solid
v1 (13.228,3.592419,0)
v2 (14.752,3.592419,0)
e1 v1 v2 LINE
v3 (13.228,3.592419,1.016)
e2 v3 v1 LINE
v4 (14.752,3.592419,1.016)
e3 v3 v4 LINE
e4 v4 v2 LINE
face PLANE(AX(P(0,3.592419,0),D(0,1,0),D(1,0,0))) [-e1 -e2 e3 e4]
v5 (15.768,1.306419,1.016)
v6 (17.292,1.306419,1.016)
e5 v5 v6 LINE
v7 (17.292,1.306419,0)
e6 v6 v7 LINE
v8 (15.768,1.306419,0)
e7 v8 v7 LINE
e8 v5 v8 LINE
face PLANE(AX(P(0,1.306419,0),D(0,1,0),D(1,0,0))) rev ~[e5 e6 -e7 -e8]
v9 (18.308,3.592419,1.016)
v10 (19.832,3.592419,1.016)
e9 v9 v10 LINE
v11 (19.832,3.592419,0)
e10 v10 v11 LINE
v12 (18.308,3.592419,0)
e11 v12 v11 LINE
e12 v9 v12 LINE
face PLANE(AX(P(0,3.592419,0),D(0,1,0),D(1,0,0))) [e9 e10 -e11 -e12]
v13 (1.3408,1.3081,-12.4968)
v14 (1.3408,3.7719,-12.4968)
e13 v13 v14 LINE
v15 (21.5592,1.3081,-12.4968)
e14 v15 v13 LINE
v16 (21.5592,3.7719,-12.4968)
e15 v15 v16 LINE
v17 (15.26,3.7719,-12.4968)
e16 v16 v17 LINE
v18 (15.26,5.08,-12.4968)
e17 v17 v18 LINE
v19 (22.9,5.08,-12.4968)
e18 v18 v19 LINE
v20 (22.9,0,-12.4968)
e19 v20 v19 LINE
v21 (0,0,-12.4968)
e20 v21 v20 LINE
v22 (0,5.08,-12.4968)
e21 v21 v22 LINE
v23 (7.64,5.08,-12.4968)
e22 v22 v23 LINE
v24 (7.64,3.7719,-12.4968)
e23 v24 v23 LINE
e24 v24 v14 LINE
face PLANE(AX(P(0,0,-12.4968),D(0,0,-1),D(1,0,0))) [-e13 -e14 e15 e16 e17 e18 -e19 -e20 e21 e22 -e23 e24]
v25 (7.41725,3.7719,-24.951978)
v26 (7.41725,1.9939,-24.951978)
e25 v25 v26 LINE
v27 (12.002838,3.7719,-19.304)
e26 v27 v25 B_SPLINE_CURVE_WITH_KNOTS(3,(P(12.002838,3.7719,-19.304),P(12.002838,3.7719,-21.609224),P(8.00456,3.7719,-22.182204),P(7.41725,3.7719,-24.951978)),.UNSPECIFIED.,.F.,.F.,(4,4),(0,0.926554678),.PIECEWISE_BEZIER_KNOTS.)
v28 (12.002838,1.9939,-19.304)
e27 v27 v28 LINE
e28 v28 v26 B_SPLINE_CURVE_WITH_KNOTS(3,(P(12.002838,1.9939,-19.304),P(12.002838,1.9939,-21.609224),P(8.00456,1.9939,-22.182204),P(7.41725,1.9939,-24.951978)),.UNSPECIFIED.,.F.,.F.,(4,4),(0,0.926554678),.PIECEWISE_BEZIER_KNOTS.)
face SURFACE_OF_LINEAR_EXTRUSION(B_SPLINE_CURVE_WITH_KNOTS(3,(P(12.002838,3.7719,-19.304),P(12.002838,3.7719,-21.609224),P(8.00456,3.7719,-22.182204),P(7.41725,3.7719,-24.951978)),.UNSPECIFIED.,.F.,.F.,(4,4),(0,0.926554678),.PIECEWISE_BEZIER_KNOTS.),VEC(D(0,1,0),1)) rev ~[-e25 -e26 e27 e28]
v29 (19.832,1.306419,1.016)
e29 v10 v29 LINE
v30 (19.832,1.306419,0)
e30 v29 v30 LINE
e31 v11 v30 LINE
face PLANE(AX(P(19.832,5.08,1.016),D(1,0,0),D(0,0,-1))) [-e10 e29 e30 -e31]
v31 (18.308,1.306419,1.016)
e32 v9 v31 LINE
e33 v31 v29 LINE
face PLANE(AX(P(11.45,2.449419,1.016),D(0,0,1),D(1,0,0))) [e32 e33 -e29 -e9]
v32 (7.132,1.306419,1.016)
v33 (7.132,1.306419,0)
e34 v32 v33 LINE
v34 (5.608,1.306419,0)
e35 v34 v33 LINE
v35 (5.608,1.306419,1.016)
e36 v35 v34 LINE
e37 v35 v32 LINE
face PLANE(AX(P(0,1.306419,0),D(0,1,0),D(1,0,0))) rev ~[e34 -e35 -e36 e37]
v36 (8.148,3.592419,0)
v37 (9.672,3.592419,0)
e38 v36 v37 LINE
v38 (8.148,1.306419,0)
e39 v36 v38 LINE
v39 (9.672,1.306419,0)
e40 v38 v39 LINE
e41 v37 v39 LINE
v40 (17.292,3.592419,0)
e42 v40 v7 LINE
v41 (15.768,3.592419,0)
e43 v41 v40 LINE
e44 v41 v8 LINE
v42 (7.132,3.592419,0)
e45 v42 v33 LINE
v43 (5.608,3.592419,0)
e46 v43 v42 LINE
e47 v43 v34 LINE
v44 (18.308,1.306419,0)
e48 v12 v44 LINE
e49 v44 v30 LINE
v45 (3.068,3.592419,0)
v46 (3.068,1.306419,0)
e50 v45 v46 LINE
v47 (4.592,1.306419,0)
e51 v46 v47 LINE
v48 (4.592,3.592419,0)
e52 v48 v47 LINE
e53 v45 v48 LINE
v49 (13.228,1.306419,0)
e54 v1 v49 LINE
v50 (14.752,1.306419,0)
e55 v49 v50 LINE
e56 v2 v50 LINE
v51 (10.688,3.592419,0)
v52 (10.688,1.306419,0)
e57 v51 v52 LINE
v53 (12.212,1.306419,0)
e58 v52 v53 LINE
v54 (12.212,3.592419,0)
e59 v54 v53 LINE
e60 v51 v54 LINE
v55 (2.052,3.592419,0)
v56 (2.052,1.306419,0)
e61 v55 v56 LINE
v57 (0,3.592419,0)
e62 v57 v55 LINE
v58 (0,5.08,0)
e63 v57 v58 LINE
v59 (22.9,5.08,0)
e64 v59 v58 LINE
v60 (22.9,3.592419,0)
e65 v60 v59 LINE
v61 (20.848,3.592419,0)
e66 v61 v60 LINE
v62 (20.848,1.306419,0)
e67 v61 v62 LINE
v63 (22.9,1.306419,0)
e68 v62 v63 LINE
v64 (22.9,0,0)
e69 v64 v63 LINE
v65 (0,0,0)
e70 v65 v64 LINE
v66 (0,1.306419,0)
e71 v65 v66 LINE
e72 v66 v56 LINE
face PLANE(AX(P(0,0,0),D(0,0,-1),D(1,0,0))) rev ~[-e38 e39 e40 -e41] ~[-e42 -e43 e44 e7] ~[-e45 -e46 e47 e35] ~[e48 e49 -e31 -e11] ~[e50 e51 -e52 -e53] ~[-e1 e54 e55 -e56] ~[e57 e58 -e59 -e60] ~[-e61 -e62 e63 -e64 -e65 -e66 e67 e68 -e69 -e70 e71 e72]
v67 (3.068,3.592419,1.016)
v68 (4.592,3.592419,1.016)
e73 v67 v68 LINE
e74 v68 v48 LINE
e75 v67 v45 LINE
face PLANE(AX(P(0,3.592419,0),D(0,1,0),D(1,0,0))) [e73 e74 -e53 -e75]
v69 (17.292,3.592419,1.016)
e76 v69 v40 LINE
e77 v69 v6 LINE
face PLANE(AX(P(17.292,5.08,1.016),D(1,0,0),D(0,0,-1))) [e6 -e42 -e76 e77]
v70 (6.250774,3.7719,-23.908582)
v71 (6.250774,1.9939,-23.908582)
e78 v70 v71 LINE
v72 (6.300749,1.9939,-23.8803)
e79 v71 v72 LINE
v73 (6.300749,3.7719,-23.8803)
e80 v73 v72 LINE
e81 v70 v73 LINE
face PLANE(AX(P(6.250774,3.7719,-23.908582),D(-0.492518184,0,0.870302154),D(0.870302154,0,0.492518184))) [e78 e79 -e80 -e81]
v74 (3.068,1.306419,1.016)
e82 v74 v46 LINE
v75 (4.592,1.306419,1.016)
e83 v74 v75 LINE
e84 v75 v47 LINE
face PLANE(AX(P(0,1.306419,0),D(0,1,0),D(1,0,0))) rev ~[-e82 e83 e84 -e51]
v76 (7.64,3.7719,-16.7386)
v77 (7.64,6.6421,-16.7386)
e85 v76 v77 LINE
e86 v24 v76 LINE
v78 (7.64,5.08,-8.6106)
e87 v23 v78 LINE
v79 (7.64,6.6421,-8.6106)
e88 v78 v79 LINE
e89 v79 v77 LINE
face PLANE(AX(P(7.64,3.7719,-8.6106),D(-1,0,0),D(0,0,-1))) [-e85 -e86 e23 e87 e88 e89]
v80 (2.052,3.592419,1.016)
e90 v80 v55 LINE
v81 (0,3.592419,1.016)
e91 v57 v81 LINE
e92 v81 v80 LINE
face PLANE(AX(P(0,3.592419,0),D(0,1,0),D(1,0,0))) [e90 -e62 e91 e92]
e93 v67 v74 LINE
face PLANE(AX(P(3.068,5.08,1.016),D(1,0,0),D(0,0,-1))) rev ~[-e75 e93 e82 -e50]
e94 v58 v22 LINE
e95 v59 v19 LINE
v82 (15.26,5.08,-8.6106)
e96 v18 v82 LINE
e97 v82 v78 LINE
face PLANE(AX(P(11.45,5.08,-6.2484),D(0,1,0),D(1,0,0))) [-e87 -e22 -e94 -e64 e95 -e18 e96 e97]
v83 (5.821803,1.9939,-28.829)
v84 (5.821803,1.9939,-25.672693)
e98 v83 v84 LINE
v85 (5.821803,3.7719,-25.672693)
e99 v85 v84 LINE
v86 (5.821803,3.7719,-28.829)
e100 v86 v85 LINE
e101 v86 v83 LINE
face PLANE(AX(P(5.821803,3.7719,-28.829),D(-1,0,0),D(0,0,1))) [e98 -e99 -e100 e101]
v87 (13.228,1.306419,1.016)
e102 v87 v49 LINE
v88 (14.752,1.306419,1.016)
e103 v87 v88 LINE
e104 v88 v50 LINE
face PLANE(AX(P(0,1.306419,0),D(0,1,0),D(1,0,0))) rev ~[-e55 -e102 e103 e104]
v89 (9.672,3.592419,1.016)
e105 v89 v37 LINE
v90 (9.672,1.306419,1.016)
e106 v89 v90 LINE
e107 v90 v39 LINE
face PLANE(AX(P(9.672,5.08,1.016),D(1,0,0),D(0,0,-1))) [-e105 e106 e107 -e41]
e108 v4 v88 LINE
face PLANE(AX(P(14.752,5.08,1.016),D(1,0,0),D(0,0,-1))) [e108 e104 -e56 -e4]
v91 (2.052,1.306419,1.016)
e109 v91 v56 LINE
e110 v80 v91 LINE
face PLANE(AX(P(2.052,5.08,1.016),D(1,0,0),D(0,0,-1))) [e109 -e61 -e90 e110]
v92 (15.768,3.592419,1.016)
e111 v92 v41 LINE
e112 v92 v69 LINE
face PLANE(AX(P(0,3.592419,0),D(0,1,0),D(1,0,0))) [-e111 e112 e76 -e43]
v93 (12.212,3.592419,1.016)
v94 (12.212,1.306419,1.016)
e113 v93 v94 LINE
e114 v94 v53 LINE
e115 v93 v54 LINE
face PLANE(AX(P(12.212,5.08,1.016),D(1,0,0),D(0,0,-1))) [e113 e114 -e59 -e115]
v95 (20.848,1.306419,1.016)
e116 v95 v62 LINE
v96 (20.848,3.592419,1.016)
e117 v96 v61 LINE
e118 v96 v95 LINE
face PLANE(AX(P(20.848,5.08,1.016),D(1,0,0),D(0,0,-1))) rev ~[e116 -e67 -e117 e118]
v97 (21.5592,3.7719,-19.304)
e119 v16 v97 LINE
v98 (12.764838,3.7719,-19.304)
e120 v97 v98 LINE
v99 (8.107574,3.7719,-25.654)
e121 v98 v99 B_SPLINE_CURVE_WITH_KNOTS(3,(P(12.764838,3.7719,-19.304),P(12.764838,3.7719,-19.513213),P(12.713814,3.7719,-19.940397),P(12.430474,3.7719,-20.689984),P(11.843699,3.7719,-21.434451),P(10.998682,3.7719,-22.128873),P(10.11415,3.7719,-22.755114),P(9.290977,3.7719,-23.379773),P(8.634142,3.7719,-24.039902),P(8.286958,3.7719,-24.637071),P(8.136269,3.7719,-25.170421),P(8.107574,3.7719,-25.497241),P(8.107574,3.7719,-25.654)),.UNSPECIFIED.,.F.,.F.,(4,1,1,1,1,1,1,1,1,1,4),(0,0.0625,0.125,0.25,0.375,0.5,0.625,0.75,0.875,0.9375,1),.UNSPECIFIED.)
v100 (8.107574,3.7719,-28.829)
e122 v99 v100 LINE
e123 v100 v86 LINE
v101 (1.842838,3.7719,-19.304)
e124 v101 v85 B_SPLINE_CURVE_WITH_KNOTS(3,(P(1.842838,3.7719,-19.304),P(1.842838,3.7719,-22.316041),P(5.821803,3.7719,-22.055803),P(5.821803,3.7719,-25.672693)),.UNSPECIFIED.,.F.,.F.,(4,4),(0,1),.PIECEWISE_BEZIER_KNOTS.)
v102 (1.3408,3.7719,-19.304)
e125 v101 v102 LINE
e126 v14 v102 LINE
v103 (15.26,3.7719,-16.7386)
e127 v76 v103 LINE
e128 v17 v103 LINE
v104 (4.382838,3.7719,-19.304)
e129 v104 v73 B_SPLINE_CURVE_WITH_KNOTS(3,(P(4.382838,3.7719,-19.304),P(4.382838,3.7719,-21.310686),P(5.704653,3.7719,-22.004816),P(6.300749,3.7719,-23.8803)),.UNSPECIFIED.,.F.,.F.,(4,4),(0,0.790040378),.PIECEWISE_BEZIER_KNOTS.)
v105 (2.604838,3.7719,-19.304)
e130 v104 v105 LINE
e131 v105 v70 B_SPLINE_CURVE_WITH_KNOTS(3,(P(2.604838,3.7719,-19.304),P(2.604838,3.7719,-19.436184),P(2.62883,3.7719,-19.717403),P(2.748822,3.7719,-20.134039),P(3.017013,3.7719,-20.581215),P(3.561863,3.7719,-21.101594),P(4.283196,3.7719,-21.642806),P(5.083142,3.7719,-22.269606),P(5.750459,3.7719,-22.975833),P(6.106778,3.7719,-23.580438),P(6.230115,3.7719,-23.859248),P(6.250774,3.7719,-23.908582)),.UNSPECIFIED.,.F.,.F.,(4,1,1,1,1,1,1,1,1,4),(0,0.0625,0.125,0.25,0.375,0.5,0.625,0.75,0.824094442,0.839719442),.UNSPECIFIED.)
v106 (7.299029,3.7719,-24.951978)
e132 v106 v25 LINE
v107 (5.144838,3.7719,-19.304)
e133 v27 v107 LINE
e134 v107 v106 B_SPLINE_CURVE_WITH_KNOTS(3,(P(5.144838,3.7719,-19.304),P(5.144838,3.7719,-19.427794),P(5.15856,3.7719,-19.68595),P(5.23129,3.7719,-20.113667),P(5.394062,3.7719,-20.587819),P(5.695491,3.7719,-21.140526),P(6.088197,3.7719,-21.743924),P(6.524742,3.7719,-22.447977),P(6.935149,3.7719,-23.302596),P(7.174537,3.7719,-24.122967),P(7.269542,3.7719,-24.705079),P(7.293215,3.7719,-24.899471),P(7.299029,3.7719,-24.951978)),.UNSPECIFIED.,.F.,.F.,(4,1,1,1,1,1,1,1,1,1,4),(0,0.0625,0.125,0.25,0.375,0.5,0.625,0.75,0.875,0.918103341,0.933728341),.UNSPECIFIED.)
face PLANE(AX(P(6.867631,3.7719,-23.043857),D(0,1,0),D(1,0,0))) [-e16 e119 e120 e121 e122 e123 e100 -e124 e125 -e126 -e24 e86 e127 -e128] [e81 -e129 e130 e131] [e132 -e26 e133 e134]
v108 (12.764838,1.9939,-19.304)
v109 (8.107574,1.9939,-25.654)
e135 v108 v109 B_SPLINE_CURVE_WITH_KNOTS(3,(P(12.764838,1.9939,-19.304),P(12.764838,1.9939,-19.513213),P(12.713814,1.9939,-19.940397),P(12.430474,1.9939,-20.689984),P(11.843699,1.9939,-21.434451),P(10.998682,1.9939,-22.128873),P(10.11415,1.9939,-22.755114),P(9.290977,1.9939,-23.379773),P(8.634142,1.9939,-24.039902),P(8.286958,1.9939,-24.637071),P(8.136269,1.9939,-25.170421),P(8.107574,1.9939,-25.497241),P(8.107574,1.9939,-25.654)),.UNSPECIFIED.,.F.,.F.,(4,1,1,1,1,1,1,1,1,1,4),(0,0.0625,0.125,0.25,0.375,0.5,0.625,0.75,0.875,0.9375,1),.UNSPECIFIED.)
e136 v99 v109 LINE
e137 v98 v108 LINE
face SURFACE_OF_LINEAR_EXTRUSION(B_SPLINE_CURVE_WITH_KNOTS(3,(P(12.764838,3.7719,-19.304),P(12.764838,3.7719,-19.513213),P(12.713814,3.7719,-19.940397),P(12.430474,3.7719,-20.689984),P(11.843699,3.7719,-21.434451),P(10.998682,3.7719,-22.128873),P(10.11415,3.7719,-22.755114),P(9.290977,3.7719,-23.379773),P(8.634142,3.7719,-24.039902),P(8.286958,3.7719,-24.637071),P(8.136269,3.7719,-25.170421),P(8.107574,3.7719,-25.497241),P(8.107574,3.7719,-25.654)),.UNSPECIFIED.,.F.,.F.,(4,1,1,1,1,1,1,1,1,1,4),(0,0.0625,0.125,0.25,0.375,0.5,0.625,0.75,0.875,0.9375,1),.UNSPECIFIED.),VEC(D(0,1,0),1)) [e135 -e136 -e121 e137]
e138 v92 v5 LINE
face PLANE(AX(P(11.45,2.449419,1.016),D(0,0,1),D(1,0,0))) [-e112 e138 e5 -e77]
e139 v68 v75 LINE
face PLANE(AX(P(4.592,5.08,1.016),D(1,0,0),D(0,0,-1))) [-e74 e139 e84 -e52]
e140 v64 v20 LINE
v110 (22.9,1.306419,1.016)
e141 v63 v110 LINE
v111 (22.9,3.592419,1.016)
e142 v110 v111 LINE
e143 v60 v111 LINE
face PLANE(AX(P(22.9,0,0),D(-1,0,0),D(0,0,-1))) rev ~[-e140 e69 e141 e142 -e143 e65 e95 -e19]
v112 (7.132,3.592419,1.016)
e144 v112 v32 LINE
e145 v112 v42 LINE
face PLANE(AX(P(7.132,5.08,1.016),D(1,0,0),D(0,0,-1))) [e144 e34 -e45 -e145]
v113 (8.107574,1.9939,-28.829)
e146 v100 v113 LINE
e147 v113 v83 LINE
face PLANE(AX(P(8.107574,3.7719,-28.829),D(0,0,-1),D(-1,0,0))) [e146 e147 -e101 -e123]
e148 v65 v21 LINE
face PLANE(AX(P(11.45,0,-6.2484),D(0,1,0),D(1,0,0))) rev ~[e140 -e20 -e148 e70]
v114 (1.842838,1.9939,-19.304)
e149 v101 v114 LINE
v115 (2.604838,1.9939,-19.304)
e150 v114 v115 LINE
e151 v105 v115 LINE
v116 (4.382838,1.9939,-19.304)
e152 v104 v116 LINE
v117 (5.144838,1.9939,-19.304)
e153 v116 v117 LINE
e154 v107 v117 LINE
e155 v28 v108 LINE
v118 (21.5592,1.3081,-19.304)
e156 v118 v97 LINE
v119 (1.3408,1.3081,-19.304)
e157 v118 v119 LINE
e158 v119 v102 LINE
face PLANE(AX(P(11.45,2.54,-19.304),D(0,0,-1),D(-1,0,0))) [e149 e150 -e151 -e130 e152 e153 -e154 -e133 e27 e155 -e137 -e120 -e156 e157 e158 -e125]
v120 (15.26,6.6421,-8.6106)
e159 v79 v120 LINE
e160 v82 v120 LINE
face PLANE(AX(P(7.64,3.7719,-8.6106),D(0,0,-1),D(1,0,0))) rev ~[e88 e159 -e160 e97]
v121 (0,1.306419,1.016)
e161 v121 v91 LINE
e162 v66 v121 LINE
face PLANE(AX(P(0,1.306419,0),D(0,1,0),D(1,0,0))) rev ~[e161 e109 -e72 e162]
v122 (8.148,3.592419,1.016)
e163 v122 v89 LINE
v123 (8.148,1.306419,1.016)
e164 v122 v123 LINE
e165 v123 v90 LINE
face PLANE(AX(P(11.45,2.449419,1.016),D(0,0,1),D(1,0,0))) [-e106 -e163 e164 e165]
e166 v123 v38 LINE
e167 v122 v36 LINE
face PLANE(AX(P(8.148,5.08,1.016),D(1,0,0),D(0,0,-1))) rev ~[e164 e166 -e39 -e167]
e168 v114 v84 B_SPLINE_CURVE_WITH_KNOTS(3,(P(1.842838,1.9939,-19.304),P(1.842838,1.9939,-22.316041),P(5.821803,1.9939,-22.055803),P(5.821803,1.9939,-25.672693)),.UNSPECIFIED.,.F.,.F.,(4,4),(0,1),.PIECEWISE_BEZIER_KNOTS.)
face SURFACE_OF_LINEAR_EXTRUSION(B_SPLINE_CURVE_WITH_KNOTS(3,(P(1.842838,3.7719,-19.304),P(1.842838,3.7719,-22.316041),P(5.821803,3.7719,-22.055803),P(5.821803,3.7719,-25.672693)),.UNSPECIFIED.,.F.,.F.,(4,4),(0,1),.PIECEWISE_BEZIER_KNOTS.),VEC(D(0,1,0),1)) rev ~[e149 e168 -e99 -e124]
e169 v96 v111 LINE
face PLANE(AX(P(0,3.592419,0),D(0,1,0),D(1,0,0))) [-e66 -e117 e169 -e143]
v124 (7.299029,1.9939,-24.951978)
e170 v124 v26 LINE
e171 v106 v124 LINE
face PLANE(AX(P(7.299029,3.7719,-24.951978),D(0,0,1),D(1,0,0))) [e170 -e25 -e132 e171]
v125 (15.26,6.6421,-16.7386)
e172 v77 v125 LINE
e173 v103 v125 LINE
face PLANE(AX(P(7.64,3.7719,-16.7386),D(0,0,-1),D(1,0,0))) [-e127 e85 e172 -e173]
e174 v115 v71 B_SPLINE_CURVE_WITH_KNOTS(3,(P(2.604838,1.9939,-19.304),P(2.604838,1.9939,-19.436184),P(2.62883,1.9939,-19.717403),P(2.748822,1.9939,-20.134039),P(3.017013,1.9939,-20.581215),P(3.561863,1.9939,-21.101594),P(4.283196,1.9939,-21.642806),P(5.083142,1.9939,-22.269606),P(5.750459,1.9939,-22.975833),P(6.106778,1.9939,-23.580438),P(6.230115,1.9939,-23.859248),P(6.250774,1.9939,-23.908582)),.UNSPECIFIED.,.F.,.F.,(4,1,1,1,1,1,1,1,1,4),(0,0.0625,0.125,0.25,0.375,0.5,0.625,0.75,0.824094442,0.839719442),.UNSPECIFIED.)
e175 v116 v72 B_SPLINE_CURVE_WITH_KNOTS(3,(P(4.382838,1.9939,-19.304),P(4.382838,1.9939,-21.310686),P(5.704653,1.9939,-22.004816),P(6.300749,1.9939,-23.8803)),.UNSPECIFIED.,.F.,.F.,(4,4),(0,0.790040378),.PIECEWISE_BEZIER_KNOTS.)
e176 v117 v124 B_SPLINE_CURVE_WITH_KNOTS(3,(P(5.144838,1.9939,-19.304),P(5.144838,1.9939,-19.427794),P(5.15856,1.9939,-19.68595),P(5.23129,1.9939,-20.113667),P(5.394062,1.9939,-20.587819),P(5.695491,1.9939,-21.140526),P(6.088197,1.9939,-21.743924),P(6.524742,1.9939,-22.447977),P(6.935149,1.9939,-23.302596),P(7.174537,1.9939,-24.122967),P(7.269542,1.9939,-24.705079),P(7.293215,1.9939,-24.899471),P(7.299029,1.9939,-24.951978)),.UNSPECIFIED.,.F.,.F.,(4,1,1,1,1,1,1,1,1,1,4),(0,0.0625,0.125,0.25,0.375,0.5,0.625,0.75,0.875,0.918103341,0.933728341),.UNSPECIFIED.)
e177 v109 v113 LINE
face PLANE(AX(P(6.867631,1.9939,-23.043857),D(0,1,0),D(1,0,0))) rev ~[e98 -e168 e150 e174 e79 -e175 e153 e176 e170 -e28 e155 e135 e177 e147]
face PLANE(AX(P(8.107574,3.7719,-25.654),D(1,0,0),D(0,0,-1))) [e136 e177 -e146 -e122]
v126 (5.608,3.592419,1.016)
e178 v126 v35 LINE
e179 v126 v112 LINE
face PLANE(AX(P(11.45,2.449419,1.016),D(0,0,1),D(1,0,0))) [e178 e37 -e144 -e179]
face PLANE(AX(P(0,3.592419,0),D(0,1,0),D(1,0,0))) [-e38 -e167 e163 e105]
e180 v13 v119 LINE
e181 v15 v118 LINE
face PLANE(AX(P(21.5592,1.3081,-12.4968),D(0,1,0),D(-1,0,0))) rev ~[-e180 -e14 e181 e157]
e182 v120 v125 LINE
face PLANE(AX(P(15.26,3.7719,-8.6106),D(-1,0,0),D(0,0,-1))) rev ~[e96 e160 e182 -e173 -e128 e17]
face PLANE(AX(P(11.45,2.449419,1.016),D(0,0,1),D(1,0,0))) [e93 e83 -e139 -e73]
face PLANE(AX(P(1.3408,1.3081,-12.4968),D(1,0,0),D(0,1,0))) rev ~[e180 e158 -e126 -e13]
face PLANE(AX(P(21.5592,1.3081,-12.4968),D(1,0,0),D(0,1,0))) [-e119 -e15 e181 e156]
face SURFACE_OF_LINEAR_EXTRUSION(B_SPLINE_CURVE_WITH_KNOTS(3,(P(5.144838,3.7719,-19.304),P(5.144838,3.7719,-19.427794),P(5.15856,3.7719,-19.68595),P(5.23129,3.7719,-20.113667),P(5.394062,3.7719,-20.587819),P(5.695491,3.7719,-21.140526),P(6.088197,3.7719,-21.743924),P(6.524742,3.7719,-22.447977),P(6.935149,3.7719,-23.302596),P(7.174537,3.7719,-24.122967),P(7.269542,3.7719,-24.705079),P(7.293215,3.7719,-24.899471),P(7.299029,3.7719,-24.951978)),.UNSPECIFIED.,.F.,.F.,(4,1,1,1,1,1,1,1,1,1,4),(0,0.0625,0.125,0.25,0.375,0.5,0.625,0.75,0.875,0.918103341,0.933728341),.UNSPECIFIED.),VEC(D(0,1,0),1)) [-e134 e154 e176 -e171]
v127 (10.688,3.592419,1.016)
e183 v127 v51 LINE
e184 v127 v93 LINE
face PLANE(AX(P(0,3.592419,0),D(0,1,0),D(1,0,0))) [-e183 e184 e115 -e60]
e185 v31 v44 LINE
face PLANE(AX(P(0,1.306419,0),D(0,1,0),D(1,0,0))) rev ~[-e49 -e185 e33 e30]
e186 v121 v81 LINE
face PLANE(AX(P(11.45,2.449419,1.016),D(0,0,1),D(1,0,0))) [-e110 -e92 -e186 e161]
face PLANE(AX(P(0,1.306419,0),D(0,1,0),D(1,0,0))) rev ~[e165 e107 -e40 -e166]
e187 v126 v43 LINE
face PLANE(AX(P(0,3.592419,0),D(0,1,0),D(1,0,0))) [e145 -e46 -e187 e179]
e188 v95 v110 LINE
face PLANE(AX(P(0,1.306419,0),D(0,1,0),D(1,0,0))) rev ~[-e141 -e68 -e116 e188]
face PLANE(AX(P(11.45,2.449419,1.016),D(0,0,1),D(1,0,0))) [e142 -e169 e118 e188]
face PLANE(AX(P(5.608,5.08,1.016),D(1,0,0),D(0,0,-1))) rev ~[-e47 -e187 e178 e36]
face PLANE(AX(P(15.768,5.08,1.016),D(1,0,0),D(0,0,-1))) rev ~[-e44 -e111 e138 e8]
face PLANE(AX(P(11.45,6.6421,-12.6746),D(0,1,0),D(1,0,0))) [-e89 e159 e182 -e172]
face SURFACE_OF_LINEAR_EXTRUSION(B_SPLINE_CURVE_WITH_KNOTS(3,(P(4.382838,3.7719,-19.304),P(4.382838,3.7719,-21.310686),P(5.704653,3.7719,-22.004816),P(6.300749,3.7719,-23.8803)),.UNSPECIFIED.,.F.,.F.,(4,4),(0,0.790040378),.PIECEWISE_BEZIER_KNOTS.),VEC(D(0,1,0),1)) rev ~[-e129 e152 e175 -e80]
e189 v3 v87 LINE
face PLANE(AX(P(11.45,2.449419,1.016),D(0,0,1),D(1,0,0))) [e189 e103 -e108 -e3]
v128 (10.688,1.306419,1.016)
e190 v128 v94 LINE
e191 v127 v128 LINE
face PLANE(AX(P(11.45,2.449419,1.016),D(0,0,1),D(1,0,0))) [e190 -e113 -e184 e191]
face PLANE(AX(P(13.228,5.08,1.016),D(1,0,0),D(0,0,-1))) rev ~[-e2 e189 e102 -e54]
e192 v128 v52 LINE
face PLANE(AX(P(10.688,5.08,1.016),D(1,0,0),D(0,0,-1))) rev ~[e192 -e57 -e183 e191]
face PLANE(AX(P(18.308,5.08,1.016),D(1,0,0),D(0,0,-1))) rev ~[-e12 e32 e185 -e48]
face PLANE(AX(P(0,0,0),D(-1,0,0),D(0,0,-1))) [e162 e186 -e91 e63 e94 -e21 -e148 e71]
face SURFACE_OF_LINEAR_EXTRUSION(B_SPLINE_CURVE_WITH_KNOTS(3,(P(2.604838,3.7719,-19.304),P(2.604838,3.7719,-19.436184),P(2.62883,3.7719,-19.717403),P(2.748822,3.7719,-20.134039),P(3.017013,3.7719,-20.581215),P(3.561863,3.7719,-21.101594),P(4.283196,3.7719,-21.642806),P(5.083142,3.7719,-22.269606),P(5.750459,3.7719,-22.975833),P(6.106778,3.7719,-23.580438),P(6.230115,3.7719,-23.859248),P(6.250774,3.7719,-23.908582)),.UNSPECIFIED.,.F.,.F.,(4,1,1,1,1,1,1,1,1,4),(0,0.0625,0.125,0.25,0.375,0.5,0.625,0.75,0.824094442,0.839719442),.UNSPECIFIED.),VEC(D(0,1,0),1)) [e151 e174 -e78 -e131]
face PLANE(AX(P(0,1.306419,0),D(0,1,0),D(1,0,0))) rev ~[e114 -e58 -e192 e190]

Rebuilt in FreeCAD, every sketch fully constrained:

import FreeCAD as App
import Part
import Sketcher
from FreeCAD import Vector
Q = App.Units.Quantity

doc = App.newDocument("Part")
body = doc.addObject("PartDesign::Body", "Body")

# Sketch on XZ plane
sketch1 = body.newObject("Sketcher::SketchObject", "Sketch")
sketch1.AttachmentSupport = (doc.getObject("XZ_Plane"), [""])
sketch1.MapMode = "FlatFace"
sketch1.addGeometry(Part.LineSegment(Vector(0, -12, 0), Vector(0, 0, 0)), False)
sketch1.addGeometry(Part.LineSegment(Vector(0, 0, 0), Vector(23, 0, 0)), False)
sketch1.addGeometry(Part.LineSegment(Vector(23, 0, 0), Vector(23, -12, 0)), False)
sketch1.addGeometry(Part.LineSegment(Vector(23, -12, 0), Vector(0, -12, 0)), False)
sketch1.addConstraint(Sketcher.Constraint("Coincident", 0, 2, 1, 1))
sketch1.addConstraint(Sketcher.Constraint("Coincident", 1, 2, 2, 1))
sketch1.addConstraint(Sketcher.Constraint("Coincident", 2, 2, 3, 1))
sketch1.addConstraint(Sketcher.Constraint("Coincident", 3, 2, 0, 1))
sketch1.addConstraint(Sketcher.Constraint("Vertical", 0))
sketch1.addConstraint(Sketcher.Constraint("Horizontal", 1))
sketch1.addConstraint(Sketcher.Constraint("Vertical", 2))
sketch1.addConstraint(Sketcher.Constraint("Horizontal", 3))
sketch1.addConstraint(Sketcher.Constraint("Coincident", 0, 2, -1, 1))
sketch1.addConstraint(Sketcher.Constraint("DistanceY", 0, 1, 0, 2, Q("0.492 in")))
sketch1.addConstraint(Sketcher.Constraint("DistanceX", 1, 1, 1, 2, 22.9))
pad1 = body.newObject("PartDesign::Pad", "Pad")
pad1.Profile = sketch1
pad1.Length = Q("0.2 in")
pad1.Reversed = True

# Sketch on XY plane
sketch2 = body.newObject("Sketcher::SketchObject", "Sketch001")
sketch2.AttachmentSupport = (doc.getObject("XY_Plane"), [""])
sketch2.MapMode = "FlatFace"
sketch2.addGeometry(Part.LineSegment(Vector(0, 3.6, 0), Vector(0, 1.3, 0)), False)
sketch2.addGeometry(Part.LineSegment(Vector(0, 1.3, 0), Vector(22.9, 1.3, 0)), False)
sketch2.addGeometry(Part.LineSegment(Vector(22.9, 1.3, 0), Vector(22.9, 3.6, 0)), False)
sketch2.addGeometry(Part.LineSegment(Vector(22.9, 3.6, 0), Vector(0, 3.6, 0)), False)
sketch2.addConstraint(Sketcher.Constraint("Coincident", 0, 2, 1, 1))
sketch2.addConstraint(Sketcher.Constraint("Coincident", 1, 2, 2, 1))
sketch2.addConstraint(Sketcher.Constraint("Coincident", 2, 2, 3, 1))
sketch2.addConstraint(Sketcher.Constraint("Coincident", 3, 2, 0, 1))
sketch2.addConstraint(Sketcher.Constraint("Vertical", 0))
sketch2.addConstraint(Sketcher.Constraint("Horizontal", 1))
sketch2.addConstraint(Sketcher.Constraint("Vertical", 2))
sketch2.addConstraint(Sketcher.Constraint("Horizontal", 3))
sketch2.addConstraint(Sketcher.Constraint("PointOnObject", 0, 2, -2))
sketch2.addConstraint(Sketcher.Constraint("DistanceY", 0, 2, 0, 1, Q("0.09 in")))
sketch2.addConstraint(Sketcher.Constraint("DistanceX", 1, 1, 1, 2, 22.9))
sketch2.addConstraint(Sketcher.Constraint("DistanceY", -1, 1, 0, 2, 1.306419))
pad2 = body.newObject("PartDesign::Pad", "Pad001")
pad2.Profile = sketch2
pad2.Length = Q("0.04 in")

# Sketch on XZ plane
sketch3 = body.newObject("Sketcher::SketchObject", "Sketch002")
sketch3.AttachmentSupport = (doc.getObject("XZ_Plane"), [""])
sketch3.MapMode = "FlatFace"
sketch3.AttachmentOffset = App.Placement(Vector(0, 0, -0.2 * 25.4), App.Rotation())
sketch3.addGeometry(Part.LineSegment(Vector(2.1, 0, 0), Vector(2.1, 1, 0)), False)
sketch3.addGeometry(Part.LineSegment(Vector(2.1, 1, 0), Vector(3.1, 1, 0)), False)
sketch3.addGeometry(Part.LineSegment(Vector(3.1, 1, 0), Vector(3.1, 0, 0)), False)
sketch3.addGeometry(Part.LineSegment(Vector(3.1, 0, 0), Vector(2.1, 0, 0)), False)
sketch3.addGeometry(Part.LineSegment(Vector(4.6, 0, 0), Vector(4.6, 1, 0)), False)
sketch3.addGeometry(Part.LineSegment(Vector(4.6, 1, 0), Vector(5.6, 1, 0)), False)
sketch3.addGeometry(Part.LineSegment(Vector(5.6, 1, 0), Vector(5.6, 0, 0)), False)
sketch3.addGeometry(Part.LineSegment(Vector(5.6, 0, 0), Vector(4.6, 0, 0)), False)
sketch3.addGeometry(Part.LineSegment(Vector(7.1, 0, 0), Vector(7.1, 1, 0)), False)
sketch3.addGeometry(Part.LineSegment(Vector(7.1, 1, 0), Vector(8.1, 1, 0)), False)
sketch3.addGeometry(Part.LineSegment(Vector(8.1, 1, 0), Vector(8.1, 0, 0)), False)
sketch3.addGeometry(Part.LineSegment(Vector(8.1, 0, 0), Vector(7.1, 0, 0)), False)
sketch3.addGeometry(Part.LineSegment(Vector(9.7, 0, 0), Vector(9.7, 1, 0)), False)
sketch3.addGeometry(Part.LineSegment(Vector(9.7, 1, 0), Vector(10.7, 1, 0)), False)
sketch3.addGeometry(Part.LineSegment(Vector(10.7, 1, 0), Vector(10.7, 0, 0)), False)
sketch3.addGeometry(Part.LineSegment(Vector(10.7, 0, 0), Vector(9.7, 0, 0)), False)
sketch3.addGeometry(Part.LineSegment(Vector(12.2, 0, 0), Vector(12.2, 1, 0)), False)
sketch3.addGeometry(Part.LineSegment(Vector(12.2, 1, 0), Vector(13.2, 1, 0)), False)
sketch3.addGeometry(Part.LineSegment(Vector(13.2, 1, 0), Vector(13.2, 0, 0)), False)
sketch3.addGeometry(Part.LineSegment(Vector(13.2, 0, 0), Vector(12.2, 0, 0)), False)
sketch3.addGeometry(Part.LineSegment(Vector(14.8, 0, 0), Vector(14.8, 1, 0)), False)
sketch3.addGeometry(Part.LineSegment(Vector(14.8, 1, 0), Vector(15.8, 1, 0)), False)
sketch3.addGeometry(Part.LineSegment(Vector(15.8, 1, 0), Vector(15.8, 0, 0)), False)
sketch3.addGeometry(Part.LineSegment(Vector(15.8, 0, 0), Vector(14.8, 0, 0)), False)
sketch3.addGeometry(Part.LineSegment(Vector(17.3, 0, 0), Vector(17.3, 1, 0)), False)
sketch3.addGeometry(Part.LineSegment(Vector(17.3, 1, 0), Vector(18.3, 1, 0)), False)
sketch3.addGeometry(Part.LineSegment(Vector(18.3, 1, 0), Vector(18.3, 0, 0)), False)
sketch3.addGeometry(Part.LineSegment(Vector(18.3, 0, 0), Vector(17.3, 0, 0)), False)
sketch3.addGeometry(Part.LineSegment(Vector(19.8, 0, 0), Vector(19.8, 1, 0)), False)
sketch3.addGeometry(Part.LineSegment(Vector(19.8, 1, 0), Vector(20.8, 1, 0)), False)
sketch3.addGeometry(Part.LineSegment(Vector(20.8, 1, 0), Vector(20.8, 0, 0)), False)
sketch3.addGeometry(Part.LineSegment(Vector(20.8, 0, 0), Vector(19.8, 0, 0)), False)
sketch3.addConstraint(Sketcher.Constraint("Coincident", 0, 2, 1, 1))
sketch3.addConstraint(Sketcher.Constraint("Coincident", 1, 2, 2, 1))
sketch3.addConstraint(Sketcher.Constraint("Coincident", 2, 2, 3, 1))
sketch3.addConstraint(Sketcher.Constraint("Coincident", 3, 2, 0, 1))
sketch3.addConstraint(Sketcher.Constraint("Coincident", 4, 2, 5, 1))
sketch3.addConstraint(Sketcher.Constraint("Coincident", 5, 2, 6, 1))
sketch3.addConstraint(Sketcher.Constraint("Coincident", 6, 2, 7, 1))
sketch3.addConstraint(Sketcher.Constraint("Coincident", 7, 2, 4, 1))
sketch3.addConstraint(Sketcher.Constraint("Coincident", 8, 2, 9, 1))
sketch3.addConstraint(Sketcher.Constraint("Coincident", 9, 2, 10, 1))
sketch3.addConstraint(Sketcher.Constraint("Coincident", 10, 2, 11, 1))
sketch3.addConstraint(Sketcher.Constraint("Coincident", 11, 2, 8, 1))
sketch3.addConstraint(Sketcher.Constraint("Coincident", 12, 2, 13, 1))
sketch3.addConstraint(Sketcher.Constraint("Coincident", 13, 2, 14, 1))
sketch3.addConstraint(Sketcher.Constraint("Coincident", 14, 2, 15, 1))
sketch3.addConstraint(Sketcher.Constraint("Coincident", 15, 2, 12, 1))
sketch3.addConstraint(Sketcher.Constraint("Coincident", 16, 2, 17, 1))
sketch3.addConstraint(Sketcher.Constraint("Coincident", 17, 2, 18, 1))
sketch3.addConstraint(Sketcher.Constraint("Coincident", 18, 2, 19, 1))
sketch3.addConstraint(Sketcher.Constraint("Coincident", 19, 2, 16, 1))
sketch3.addConstraint(Sketcher.Constraint("Coincident", 20, 2, 21, 1))
sketch3.addConstraint(Sketcher.Constraint("Coincident", 21, 2, 22, 1))
sketch3.addConstraint(Sketcher.Constraint("Coincident", 22, 2, 23, 1))
sketch3.addConstraint(Sketcher.Constraint("Coincident", 23, 2, 20, 1))
sketch3.addConstraint(Sketcher.Constraint("Coincident", 24, 2, 25, 1))
sketch3.addConstraint(Sketcher.Constraint("Coincident", 25, 2, 26, 1))
sketch3.addConstraint(Sketcher.Constraint("Coincident", 26, 2, 27, 1))
sketch3.addConstraint(Sketcher.Constraint("Coincident", 27, 2, 24, 1))
sketch3.addConstraint(Sketcher.Constraint("Coincident", 28, 2, 29, 1))
sketch3.addConstraint(Sketcher.Constraint("Coincident", 29, 2, 30, 1))
sketch3.addConstraint(Sketcher.Constraint("Coincident", 30, 2, 31, 1))
sketch3.addConstraint(Sketcher.Constraint("Coincident", 31, 2, 28, 1))
sketch3.addConstraint(Sketcher.Constraint("Vertical", 0))
sketch3.addConstraint(Sketcher.Constraint("Horizontal", 1))
sketch3.addConstraint(Sketcher.Constraint("Vertical", 2))
sketch3.addConstraint(Sketcher.Constraint("Horizontal", 3))
sketch3.addConstraint(Sketcher.Constraint("Vertical", 4))
sketch3.addConstraint(Sketcher.Constraint("Horizontal", 5))
sketch3.addConstraint(Sketcher.Constraint("Vertical", 6))
sketch3.addConstraint(Sketcher.Constraint("Horizontal", 7))
sketch3.addConstraint(Sketcher.Constraint("Vertical", 8))
sketch3.addConstraint(Sketcher.Constraint("Horizontal", 9))
sketch3.addConstraint(Sketcher.Constraint("Vertical", 10))
sketch3.addConstraint(Sketcher.Constraint("Horizontal", 11))
sketch3.addConstraint(Sketcher.Constraint("Vertical", 12))
sketch3.addConstraint(Sketcher.Constraint("Horizontal", 13))
sketch3.addConstraint(Sketcher.Constraint("Vertical", 14))
sketch3.addConstraint(Sketcher.Constraint("Horizontal", 15))
sketch3.addConstraint(Sketcher.Constraint("Vertical", 16))
sketch3.addConstraint(Sketcher.Constraint("Horizontal", 17))
sketch3.addConstraint(Sketcher.Constraint("Vertical", 18))
sketch3.addConstraint(Sketcher.Constraint("Horizontal", 19))
sketch3.addConstraint(Sketcher.Constraint("Vertical", 20))
sketch3.addConstraint(Sketcher.Constraint("Horizontal", 21))
sketch3.addConstraint(Sketcher.Constraint("Vertical", 22))
sketch3.addConstraint(Sketcher.Constraint("Horizontal", 23))
sketch3.addConstraint(Sketcher.Constraint("Vertical", 24))
sketch3.addConstraint(Sketcher.Constraint("Horizontal", 25))
sketch3.addConstraint(Sketcher.Constraint("Vertical", 26))
sketch3.addConstraint(Sketcher.Constraint("Horizontal", 27))
sketch3.addConstraint(Sketcher.Constraint("Vertical", 28))
sketch3.addConstraint(Sketcher.Constraint("Horizontal", 29))
sketch3.addConstraint(Sketcher.Constraint("Vertical", 30))
sketch3.addConstraint(Sketcher.Constraint("Horizontal", 31))
sketch3.addConstraint(Sketcher.Constraint("PointOnObject", 2, 2, -1))
sketch3.addConstraint(Sketcher.Constraint("PointOnObject", 6, 2, -1))
sketch3.addConstraint(Sketcher.Constraint("PointOnObject", 10, 2, -1))
sketch3.addConstraint(Sketcher.Constraint("PointOnObject", 14, 2, -1))
sketch3.addConstraint(Sketcher.Constraint("PointOnObject", 18, 2, -1))
sketch3.addConstraint(Sketcher.Constraint("PointOnObject", 22, 2, -1))
sketch3.addConstraint(Sketcher.Constraint("PointOnObject", 26, 2, -1))
sketch3.addConstraint(Sketcher.Constraint("PointOnObject", 30, 2, -1))
sketch3.addConstraint(Sketcher.Constraint("Horizontal", 1, 2, 4, 2))
sketch3.addConstraint(Sketcher.Constraint("Horizontal", 5, 2, 8, 2))
sketch3.addConstraint(Sketcher.Constraint("Horizontal", 9, 2, 12, 2))
sketch3.addConstraint(Sketcher.Constraint("Horizontal", 13, 2, 16, 2))
sketch3.addConstraint(Sketcher.Constraint("Horizontal", 17, 2, 20, 2))
sketch3.addConstraint(Sketcher.Constraint("Horizontal", 21, 2, 24, 2))
sketch3.addConstraint(Sketcher.Constraint("Horizontal", 25, 2, 28, 2))
sketch3.addConstraint(Sketcher.Constraint("Equal", 3, 5))
sketch3.addConstraint(Sketcher.Constraint("Equal", 7, 9))
sketch3.addConstraint(Sketcher.Constraint("Equal", 11, 13))
sketch3.addConstraint(Sketcher.Constraint("Equal", 15, 17))
sketch3.addConstraint(Sketcher.Constraint("Equal", 19, 21))
sketch3.addConstraint(Sketcher.Constraint("Equal", 23, 25))
sketch3.addConstraint(Sketcher.Constraint("Equal", 27, 29))
sketch3.addConstraint(Sketcher.Constraint("Equal", 31, 0))
sketch3.addConstraint(Sketcher.Constraint("DistanceX", 1, 1, 1, 2, Q("0.04 in")))
sketch3.addConstraint(Sketcher.Constraint("DistanceX", 0, 2, 4, 2, Q("0.1 in")))
sketch3.addConstraint(Sketcher.Constraint("DistanceX", 4, 2, 8, 2, Q("0.1 in")))
sketch3.addConstraint(Sketcher.Constraint("DistanceX", 8, 2, 12, 2, Q("0.1 in")))
sketch3.addConstraint(Sketcher.Constraint("DistanceX", 12, 2, 16, 2, Q("0.1 in")))
sketch3.addConstraint(Sketcher.Constraint("DistanceX", 16, 2, 20, 2, Q("0.1 in")))
sketch3.addConstraint(Sketcher.Constraint("DistanceX", 20, 2, 24, 2, Q("0.1 in")))
sketch3.addConstraint(Sketcher.Constraint("DistanceX", 24, 2, 28, 2, Q("0.1 in")))
sketch3.addConstraint(Sketcher.Constraint("DistanceX", -1, 1, 0, 2, 2.052))
pocket1 = body.newObject("PartDesign::Pocket", "Pocket")
pocket1.Profile = sketch3
pocket1.Type = "ThroughAll"
pocket1.Reversed = True

# Sketch on XY plane
sketch4 = body.newObject("Sketcher::SketchObject", "Sketch003")
sketch4.AttachmentSupport = (doc.getObject("XY_Plane"), [""])
sketch4.MapMode = "FlatFace"
sketch4.AttachmentOffset = App.Placement(Vector(0, 0, -0.492 * 25.4), App.Rotation())
sketch4.addGeometry(Part.LineSegment(Vector(21.6, 3.8, 0), Vector(21.6, 1.3, 0)), False)
sketch4.addGeometry(Part.LineSegment(Vector(21.6, 1.3, 0), Vector(1.3, 1.3, 0)), False)
sketch4.addGeometry(Part.LineSegment(Vector(1.3, 1.3, 0), Vector(1.3, 3.8, 0)), False)
sketch4.addGeometry(Part.LineSegment(Vector(1.3, 3.8, 0), Vector(21.6, 3.8, 0)), False)
sketch4.addConstraint(Sketcher.Constraint("Coincident", 0, 2, 1, 1))
sketch4.addConstraint(Sketcher.Constraint("Coincident", 1, 2, 2, 1))
sketch4.addConstraint(Sketcher.Constraint("Coincident", 2, 2, 3, 1))
sketch4.addConstraint(Sketcher.Constraint("Coincident", 3, 2, 0, 1))
sketch4.addConstraint(Sketcher.Constraint("Vertical", 0))
sketch4.addConstraint(Sketcher.Constraint("Horizontal", 1))
sketch4.addConstraint(Sketcher.Constraint("Vertical", 2))
sketch4.addConstraint(Sketcher.Constraint("Horizontal", 3))
sketch4.addConstraint(Sketcher.Constraint("DistanceX", 1, 2, 1, 1, Q("0.796 in")))
sketch4.addConstraint(Sketcher.Constraint("DistanceY", 0, 2, 0, 1, Q("0.097 in")))
sketch4.addConstraint(Sketcher.Constraint("DistanceY", -1, 1, 0, 2, Q("0.0515 in")))
sketch4.addConstraint(Sketcher.Constraint("DistanceX", -1, 1, 0, 2, 21.5592))
pad3 = body.newObject("PartDesign::Pad", "Pad002")
pad3.Profile = sketch4
pad3.Length = Q("0.268 in")
pad3.Reversed = True

# Sketch on XZ plane
sketch5 = body.newObject("Sketcher::SketchObject", "Sketch004")
sketch5.AttachmentSupport = (doc.getObject("XZ_Plane"), [""])
sketch5.MapMode = "FlatFace"
sketch5.AttachmentOffset = App.Placement(Vector(0, 0, -0.1485 * 25.4), App.Rotation())
sketch5.addGeometry(Part.LineSegment(Vector(8, -17, 0), Vector(8, -9, 0)), False)
sketch5.addGeometry(Part.LineSegment(Vector(8, -9, 0), Vector(15, -9, 0)), False)
sketch5.addGeometry(Part.LineSegment(Vector(15, -9, 0), Vector(15, -17, 0)), False)
sketch5.addGeometry(Part.LineSegment(Vector(15, -17, 0), Vector(8, -17, 0)), False)
sketch5.addConstraint(Sketcher.Constraint("Coincident", 0, 2, 1, 1))
sketch5.addConstraint(Sketcher.Constraint("Coincident", 1, 2, 2, 1))
sketch5.addConstraint(Sketcher.Constraint("Coincident", 2, 2, 3, 1))
sketch5.addConstraint(Sketcher.Constraint("Coincident", 3, 2, 0, 1))
sketch5.addConstraint(Sketcher.Constraint("Vertical", 0))
sketch5.addConstraint(Sketcher.Constraint("Horizontal", 1))
sketch5.addConstraint(Sketcher.Constraint("Vertical", 2))
sketch5.addConstraint(Sketcher.Constraint("Horizontal", 3))
sketch5.addConstraint(Sketcher.Constraint("DistanceX", 1, 1, 1, 2, Q("0.3 in")))
sketch5.addConstraint(Sketcher.Constraint("DistanceY", 0, 1, 0, 2, Q("0.32 in")))
sketch5.addConstraint(Sketcher.Constraint("DistanceY", 0, 2, -1, 1, Q("0.339 in")))
sketch5.addConstraint(Sketcher.Constraint("DistanceX", -1, 1, 0, 2, 7.64))
pad4 = body.newObject("PartDesign::Pad", "Pad003")
pad4.Profile = sketch5
pad4.Length = Q("0.113 in")
pad4.Reversed = True

# Sketch on XZ plane
sketch6 = body.newObject("Sketcher::SketchObject", "Sketch005")
sketch6.AttachmentSupport = (doc.getObject("XZ_Plane"), [""])
sketch6.MapMode = "FlatFace"
sketch6.AttachmentOffset = App.Placement(Vector(0, 0, -0.1485 * 25.4), App.Rotation())
sketch6.addGeometry(Part.BSplineCurve([Vector(12.002838, -19.304, 0), Vector(12.002838, -21.609224, 0), Vector(8.00456, -22.182204, 0), Vector(7.41725, -24.951978, 0)], [4, 4], [0, 0.926554678], False, 3, [1, 1, 1, 1], False), False)
sketch6.addGeometry(Part.LineSegment(Vector(12.002838, -19.304, 0), Vector(12.764838, -19.304, 0)), False)
sketch6.addGeometry(Part.BSplineCurve([Vector(12.764838, -19.304, 0), Vector(12.764838, -19.513213, 0), Vector(12.713814, -19.940397, 0), Vector(12.430474, -20.689984, 0), Vector(11.843699, -21.434451, 0), Vector(10.998682, -22.128873, 0), Vector(10.11415, -22.755114, 0), Vector(9.290977, -23.379773, 0), Vector(8.634142, -24.039902, 0), Vector(8.286958, -24.637071, 0), Vector(8.136269, -25.170421, 0), Vector(8.107574, -25.497241, 0), Vector(8.107574, -25.654, 0)], [4, 1, 1, 1, 1, 1, 1, 1, 1, 1, 4], [0, 0.0625, 0.125, 0.25, 0.375, 0.5, 0.625, 0.75, 0.875, 0.9375, 1], False, 3, [1, 1, 1, 1, 1, 1, 1, 1, 1, 1, 1, 1, 1], False), False)
sketch6.addGeometry(Part.LineSegment(Vector(8.107574, -25.654, 0), Vector(8.107574, -28.829, 0)), False)
sketch6.addGeometry(Part.LineSegment(Vector(8.107574, -28.829, 0), Vector(5.821803, -28.829, 0)), False)
sketch6.addGeometry(Part.LineSegment(Vector(5.821803, -28.829, 0), Vector(5.821803, -25.672693, 0)), False)
sketch6.addGeometry(Part.BSplineCurve([Vector(1.842838, -19.304, 0), Vector(1.842838, -22.316041, 0), Vector(5.821803, -22.055803, 0), Vector(5.821803, -25.672693, 0)], [4, 4], [0, 1], False, 3, [1, 1, 1, 1], False), False)
sketch6.addGeometry(Part.LineSegment(Vector(1.842838, -19.304, 0), Vector(2.604838, -19.304, 0)), False)
sketch6.addGeometry(Part.BSplineCurve([Vector(2.604838, -19.304, 0), Vector(2.604838, -19.436184, 0), Vector(2.62883, -19.717403, 0), Vector(2.748822, -20.134039, 0), Vector(3.017013, -20.581215, 0), Vector(3.561863, -21.101594, 0), Vector(4.283196, -21.642806, 0), Vector(5.083142, -22.269606, 0), Vector(5.750459, -22.975833, 0), Vector(6.106778, -23.580438, 0), Vector(6.230115, -23.859248, 0), Vector(6.250774, -23.908582, 0)], [4, 1, 1, 1, 1, 1, 1, 1, 1, 4], [0, 0.0625, 0.125, 0.25, 0.375, 0.5, 0.625, 0.75, 0.824094442, 0.839719442], False, 3, [1, 1, 1, 1, 1, 1, 1, 1, 1, 1, 1, 1], False), False)
sketch6.addGeometry(Part.LineSegment(Vector(6.250774, -23.908582, 0), Vector(6.300749, -23.8803, 0)), False)
sketch6.addGeometry(Part.BSplineCurve([Vector(4.382838, -19.304, 0), Vector(4.382838, -21.310686, 0), Vector(5.704653, -22.004816, 0), Vector(6.300749, -23.8803, 0)], [4, 4], [0, 0.790040378], False, 3, [1, 1, 1, 1], False), False)
sketch6.addGeometry(Part.LineSegment(Vector(4.382838, -19.304, 0), Vector(5.144838, -19.304, 0)), False)
sketch6.addGeometry(Part.BSplineCurve([Vector(5.144838, -19.304, 0), Vector(5.144838, -19.427794, 0), Vector(5.15856, -19.68595, 0), Vector(5.23129, -20.113667, 0), Vector(5.394062, -20.587819, 0), Vector(5.695491, -21.140526, 0), Vector(6.088197, -21.743924, 0), Vector(6.524742, -22.447977, 0), Vector(6.935149, -23.302596, 0), Vector(7.174537, -24.122967, 0), Vector(7.269542, -24.705079, 0), Vector(7.293215, -24.899471, 0), Vector(7.299029, -24.951978, 0)], [4, 1, 1, 1, 1, 1, 1, 1, 1, 1, 4], [0, 0.0625, 0.125, 0.25, 0.375, 0.5, 0.625, 0.75, 0.875, 0.918103341, 0.933728341], False, 3, [1, 1, 1, 1, 1, 1, 1, 1, 1, 1, 1, 1, 1], False), False)
sketch6.addGeometry(Part.LineSegment(Vector(7.299029, -24.951978, 0), Vector(7.41725, -24.951978, 0)), False)
sketch6.addConstraint(Sketcher.Constraint("Block", 0))
sketch6.addConstraint(Sketcher.Constraint("Block", 2))
sketch6.addConstraint(Sketcher.Constraint("Block", 6))
sketch6.addConstraint(Sketcher.Constraint("Block", 8))
sketch6.addConstraint(Sketcher.Constraint("Block", 10))
sketch6.addConstraint(Sketcher.Constraint("Block", 12))
sketch6.addConstraint(Sketcher.Constraint("Coincident", 0, 1, 1, 1))
sketch6.addConstraint(Sketcher.Constraint("Coincident", 1, 2, 2, 1))
sketch6.addConstraint(Sketcher.Constraint("Coincident", 2, 2, 3, 1))
sketch6.addConstraint(Sketcher.Constraint("Coincident", 3, 2, 4, 1))
sketch6.addConstraint(Sketcher.Constraint("Coincident", 4, 2, 5, 1))
sketch6.addConstraint(Sketcher.Constraint("Coincident", 5, 2, 6, 2))
sketch6.addConstraint(Sketcher.Constraint("Coincident", 6, 1, 7, 1))
sketch6.addConstraint(Sketcher.Constraint("Coincident", 7, 2, 8, 1))
sketch6.addConstraint(Sketcher.Constraint("Coincident", 8, 2, 9, 1))
sketch6.addConstraint(Sketcher.Constraint("Coincident", 9, 2, 10, 2))
sketch6.addConstraint(Sketcher.Constraint("Coincident", 10, 1, 11, 1))
sketch6.addConstraint(Sketcher.Constraint("Coincident", 11, 2, 12, 1))
sketch6.addConstraint(Sketcher.Constraint("Coincident", 12, 2, 13, 1))
sketch6.addConstraint(Sketcher.Constraint("Coincident", 13, 2, 0, 2))
sketch6.addConstraint(Sketcher.Constraint("Vertical", 3))
sketch6.addConstraint(Sketcher.Constraint("Horizontal", 4))
sketch6.addConstraint(Sketcher.Constraint("Vertical", 5))
sketch6.addConstraint(Sketcher.Constraint("DistanceY", 3, 2, 3, 1, Q("0.125 in")))
pad5 = body.newObject("PartDesign::Pad", "Pad004")
pad5.Profile = sketch6
pad5.Length = Q("0.07 in")

doc.recompute()
